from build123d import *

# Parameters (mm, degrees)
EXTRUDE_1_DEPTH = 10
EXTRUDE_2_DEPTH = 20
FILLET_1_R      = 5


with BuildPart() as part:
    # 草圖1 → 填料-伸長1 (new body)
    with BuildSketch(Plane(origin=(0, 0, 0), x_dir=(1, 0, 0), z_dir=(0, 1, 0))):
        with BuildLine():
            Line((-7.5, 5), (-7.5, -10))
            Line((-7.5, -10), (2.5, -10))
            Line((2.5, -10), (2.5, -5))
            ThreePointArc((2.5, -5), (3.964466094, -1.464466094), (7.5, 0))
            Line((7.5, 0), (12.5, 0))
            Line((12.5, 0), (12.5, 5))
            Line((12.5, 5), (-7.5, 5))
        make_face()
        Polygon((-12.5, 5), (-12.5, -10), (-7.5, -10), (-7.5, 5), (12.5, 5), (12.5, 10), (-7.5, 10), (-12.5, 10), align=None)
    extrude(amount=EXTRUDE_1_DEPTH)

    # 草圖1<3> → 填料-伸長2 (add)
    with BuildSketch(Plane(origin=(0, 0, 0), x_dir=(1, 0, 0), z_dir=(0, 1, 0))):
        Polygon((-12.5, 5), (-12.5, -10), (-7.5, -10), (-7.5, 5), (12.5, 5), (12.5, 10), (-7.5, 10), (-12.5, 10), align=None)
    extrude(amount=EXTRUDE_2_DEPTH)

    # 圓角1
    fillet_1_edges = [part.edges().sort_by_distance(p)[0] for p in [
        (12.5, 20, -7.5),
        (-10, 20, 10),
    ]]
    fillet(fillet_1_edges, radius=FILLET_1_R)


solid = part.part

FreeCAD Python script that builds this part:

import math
import FreeCAD as App
import Part
import Sketcher
from FreeCAD import Vector


def edges_at(feature, points):
    """Names of the edges that pass closest to the given points."""
    edges = feature.Shape.Edges
    near = lambda p: min(range(len(edges)), key=lambda i: edges[i].distToShape(Part.Vertex(*p))[0])
    return sorted({f"Edge{near(p) + 1}" for p in points})


def add_polygon(sketch, points):
    """Adds a closed chain of lines whose ends are joined by coincident constraints."""
    first, n = sketch.GeometryCount, len(points)
    for a, b in zip(points, points[1:] + points[:1]):
        sketch.addGeometry(Part.LineSegment(App.Vector(*a, 0), App.Vector(*b, 0)), False)
    for i in range(n):
        sketch.addConstraint(Sketcher.Constraint("Coincident", first + i, 2, first + (i + 1) % n, 1))

doc = App.newDocument("Part")
params = doc.addObject("Spreadsheet::Sheet", "Params")
for row, (alias, value) in enumerate([
    ("sketch1_radius", "5 mm"),
    ("sketch1_width", "5 mm"),
    ("sketch1_width2", "25 mm"),
    ("pad1_length", "10 mm"),
    ("sketch2_width", "5 mm"),
    ("sketch2_width2", "20 mm"),
    ("pad2_length", "20 mm"),
    ("fillet_radius", "5 mm"),
], start=1):
    params.set(f"A{row}", alias)
    params.set(f"B{row}", "=" + value)
    params.setAlias(f"B{row}", alias)

body = doc.addObject("PartDesign::Body", "Body")

# Sketch on XZ plane
sketch1 = body.newObject("Sketcher::SketchObject", "Sketch")
sketch1.AttachmentSupport = (doc.getObject("XZ_Plane"), [""])
sketch1.MapMode = "FlatFace"
sketch1.addGeometry([
    Part.LineSegment(Vector(2, 10, 0), Vector(2, 5, 0)),  # 0
    Part.ArcOfCircle(Part.Circle(Vector(8, 5, 0), Vector(0, 0, 1), 5), math.radians(180), math.radians(270)),  # 1
    Part.LineSegment(Vector(8, 0, 0), Vector(12, 0, 0)),  # 2
    Part.LineSegment(Vector(12, 0, 0), Vector(12, -10, 0)),  # 3
    Part.LineSegment(Vector(12, -10, 0), Vector(-12, -10, 0)),  # 4
    Part.LineSegment(Vector(-12, -10, 0), Vector(-12, 10, 0)),  # 5
    Part.LineSegment(Vector(-12, 10, 0), Vector(2, 10, 0)),  # 6
], False)
sketch1.addConstraint([
    Sketcher.Constraint("Tangent", 0, 2, 1, 1),
    Sketcher.Constraint("Tangent", 1, 2, 2, 1),
    Sketcher.Constraint("Coincident", 2, 2, 3, 1),
    Sketcher.Constraint("Coincident", 3, 2, 4, 1),
    Sketcher.Constraint("Coincident", 4, 2, 5, 1),
    Sketcher.Constraint("Coincident", 5, 2, 6, 1),
    Sketcher.Constraint("Coincident", 6, 2, 0, 1),
    Sketcher.Constraint("Vertical", 0),
    Sketcher.Constraint("Horizontal", 2),
    Sketcher.Constraint("Vertical", 3),
    Sketcher.Constraint("Horizontal", 4),
    Sketcher.Constraint("Vertical", 5),
    Sketcher.Constraint("Horizontal", 6),
    Sketcher.Constraint("Symmetric", 3, 2, 5, 2, -1, 1),
    Sketcher.Constraint("PointOnObject", 1, 2, -1),
    Sketcher.Constraint("Equal", 2, 0),
    Sketcher.Constraint("Radius", 1, 5.0),
    Sketcher.Constraint("DistanceX", 2, 1, 2, 2, 5.0),
    Sketcher.Constraint("DistanceX", 4, 2, 4, 1, 25.0),
])
sketch1.setExpression("Constraints[16]", "Params.sketch1_radius")
sketch1.setExpression("Constraints[17]", "Params.sketch1_width")
sketch1.setExpression("Constraints[18]", "Params.sketch1_width2")
pad1 = body.newObject("PartDesign::Pad", "Pad")
pad1.Profile = sketch1
pad1.setExpression("Length", "Params.pad1_length")
pad1.Reversed = True

# Sketch on XZ plane
sketch2 = body.newObject("Sketcher::SketchObject", "Sketch001")
sketch2.AttachmentSupport = (doc.getObject("XZ_Plane"), [""])
sketch2.MapMode = "FlatFace"
add_polygon(sketch2, [(-12, 10), (-8, 10), (-8, -5), (12, -5), (12, -10), (-12, -10)])  # lines 0-5
sketch2.addConstraint([
    Sketcher.Constraint("Horizontal", 0),
    Sketcher.Constraint("Vertical", 1),
    Sketcher.Constraint("Horizontal", 2),
    Sketcher.Constraint("Vertical", 3),
    Sketcher.Constraint("Horizontal", 4),
    Sketcher.Constraint("Vertical", 5),
    Sketcher.Constraint("Symmetric", 3, 2, 5, 2, -1, 1),
    Sketcher.Constraint("Equal", 0, 3),
    Sketcher.Constraint("Equal", 2, 5),
    Sketcher.Constraint("DistanceX", 0, 1, 0, 2, 5.0),
    Sketcher.Constraint("DistanceX", 2, 1, 2, 2, 20.0),
])
sketch2.setExpression("Constraints[15]", "Params.sketch2_width")
sketch2.setExpression("Constraints[16]", "Params.sketch2_width2")
pad2 = body.newObject("PartDesign::Pad", "Pad001")
pad2.Profile = sketch2
pad2.setExpression("Length", "Params.pad2_length")
pad2.Reversed = True
doc.recompute()

fillet = body.newObject("PartDesign::Fillet", "Fillet")
fillet.Base = (pad2, edges_at(pad2, [(12.5, 20, -7.5), (-10, 20, 10)]))
fillet.setExpression("Radius", "Params.fillet_radius")

doc.recompute()
